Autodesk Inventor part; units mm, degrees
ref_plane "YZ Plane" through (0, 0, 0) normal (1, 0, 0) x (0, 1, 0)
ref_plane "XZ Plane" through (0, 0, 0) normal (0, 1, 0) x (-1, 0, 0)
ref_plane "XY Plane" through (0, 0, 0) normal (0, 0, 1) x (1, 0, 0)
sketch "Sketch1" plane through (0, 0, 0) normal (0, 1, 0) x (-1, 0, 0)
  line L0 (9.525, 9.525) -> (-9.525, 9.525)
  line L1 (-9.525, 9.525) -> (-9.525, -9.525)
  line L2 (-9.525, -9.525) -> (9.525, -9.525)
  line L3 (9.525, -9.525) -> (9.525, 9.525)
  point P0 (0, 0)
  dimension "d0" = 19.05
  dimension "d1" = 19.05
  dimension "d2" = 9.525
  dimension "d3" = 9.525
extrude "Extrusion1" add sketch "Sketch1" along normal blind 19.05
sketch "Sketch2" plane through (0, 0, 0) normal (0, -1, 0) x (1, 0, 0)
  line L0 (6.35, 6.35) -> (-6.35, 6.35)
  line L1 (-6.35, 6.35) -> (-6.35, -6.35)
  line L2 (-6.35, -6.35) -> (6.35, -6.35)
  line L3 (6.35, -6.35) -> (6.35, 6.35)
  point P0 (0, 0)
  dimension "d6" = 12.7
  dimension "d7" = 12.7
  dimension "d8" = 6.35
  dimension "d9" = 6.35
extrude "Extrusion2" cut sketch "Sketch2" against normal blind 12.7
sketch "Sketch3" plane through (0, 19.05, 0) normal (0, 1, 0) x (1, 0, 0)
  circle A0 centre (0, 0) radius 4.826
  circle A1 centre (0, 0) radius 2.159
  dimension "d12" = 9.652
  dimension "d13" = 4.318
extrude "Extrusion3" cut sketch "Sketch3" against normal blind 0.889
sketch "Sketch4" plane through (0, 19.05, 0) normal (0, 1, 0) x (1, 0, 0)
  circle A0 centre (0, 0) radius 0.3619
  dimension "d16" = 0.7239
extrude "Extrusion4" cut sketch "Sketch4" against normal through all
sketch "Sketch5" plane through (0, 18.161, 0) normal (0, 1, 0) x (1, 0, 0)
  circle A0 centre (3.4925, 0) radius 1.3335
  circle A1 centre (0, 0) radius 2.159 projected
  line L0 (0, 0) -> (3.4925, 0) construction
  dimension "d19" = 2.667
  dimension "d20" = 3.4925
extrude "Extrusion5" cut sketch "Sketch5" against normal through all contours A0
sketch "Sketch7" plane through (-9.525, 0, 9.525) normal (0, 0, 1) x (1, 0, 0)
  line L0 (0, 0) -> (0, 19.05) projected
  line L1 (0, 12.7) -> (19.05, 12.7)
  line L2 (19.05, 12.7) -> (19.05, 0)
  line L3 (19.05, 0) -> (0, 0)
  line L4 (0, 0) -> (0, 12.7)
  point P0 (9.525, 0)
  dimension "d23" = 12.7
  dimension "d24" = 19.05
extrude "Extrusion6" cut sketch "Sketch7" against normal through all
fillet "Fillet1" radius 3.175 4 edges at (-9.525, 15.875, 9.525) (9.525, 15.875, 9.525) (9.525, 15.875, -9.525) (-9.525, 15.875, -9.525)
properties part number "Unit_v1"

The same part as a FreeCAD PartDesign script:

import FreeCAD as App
import Part
import Sketcher

V = App.Vector
Q = App.Units.Quantity


def edges_at(feature, points):
    """Names of the edges that pass closest to the given points."""
    edges = feature.Shape.Edges
    near = lambda p: min(range(len(edges)), key=lambda i: edges[i].distToShape(Part.Vertex(*p))[0])
    return sorted({f"Edge{near(p) + 1}" for p in points})

doc = App.newDocument("Part")
body = doc.addObject("PartDesign::Body", "Body")

# Sketch on XZ plane
sketch1 = body.newObject("Sketcher::SketchObject", "Sketch")
sketch1.AttachmentSupport = (doc.getObject("XZ_Plane"), [""])
sketch1.MapMode = "FlatFace"
sketch1.addGeometry([
    Part.LineSegment(V(-10, -10, 0), V(-10, 10, 0)),
    Part.LineSegment(V(-10, 10, 0), V(10, 10, 0)),
    Part.LineSegment(V(10, 10, 0), V(10, -10, 0)),
    Part.LineSegment(V(10, -10, 0), V(-10, -10, 0)),
], False)
sketch1.addConstraint([
    Sketcher.Constraint("Coincident", 0, 2, 1, 1),
    Sketcher.Constraint("Coincident", 1, 2, 2, 1),
    Sketcher.Constraint("Coincident", 2, 2, 3, 1),
    Sketcher.Constraint("Coincident", 3, 2, 0, 1),
    Sketcher.Constraint("Vertical", 0),
    Sketcher.Constraint("Horizontal", 1),
    Sketcher.Constraint("Vertical", 2),
    Sketcher.Constraint("Horizontal", 3),
    Sketcher.Constraint("Symmetric", 0, 2, 2, 2, -1, 1),
    Sketcher.Constraint("Equal", 3, 0),
    Sketcher.Constraint("DistanceX", 1, 1, 1, 2, Q("0.75 in")),
])
pad1 = body.newObject("PartDesign::Pad", "Pad")
pad1.Profile = sketch1
pad1.Length = Q("0.75 in")
pad1.Reversed = True

# Sketch on XZ plane
sketch2 = body.newObject("Sketcher::SketchObject", "Sketch001")
sketch2.AttachmentSupport = (doc.getObject("XZ_Plane"), [""])
sketch2.MapMode = "FlatFace"
sketch2.addGeometry([
    Part.LineSegment(V(6, -6, 0), V(6, 6, 0)),
    Part.LineSegment(V(6, 6, 0), V(-6, 6, 0)),
    Part.LineSegment(V(-6, 6, 0), V(-6, -6, 0)),
    Part.LineSegment(V(-6, -6, 0), V(6, -6, 0)),
], False)
sketch2.addConstraint([
    Sketcher.Constraint("Coincident", 0, 2, 1, 1),
    Sketcher.Constraint("Coincident", 1, 2, 2, 1),
    Sketcher.Constraint("Coincident", 2, 2, 3, 1),
    Sketcher.Constraint("Coincident", 3, 2, 0, 1),
    Sketcher.Constraint("Vertical", 0),
    Sketcher.Constraint("Horizontal", 1),
    Sketcher.Constraint("Vertical", 2),
    Sketcher.Constraint("Horizontal", 3),
    Sketcher.Constraint("Symmetric", 0, 2, 2, 2, -1, 1),
    Sketcher.Constraint("Equal", 3, 0),
    Sketcher.Constraint("DistanceX", 1, 2, 1, 1, Q("0.5 in")),
])
pocket1 = body.newObject("PartDesign::Pocket", "Pocket")
pocket1.Profile = sketch2
pocket1.Length = Q("0.5 in")

# Sketch on XZ plane
sketch3 = body.newObject("Sketcher::SketchObject", "Sketch002")
sketch3.AttachmentSupport = (doc.getObject("XZ_Plane"), [""])
sketch3.MapMode = "FlatFace"
sketch3.AttachmentOffset = App.Placement(V(0, 0, -0.75 * 25.4), App.Rotation())
sketch3.addGeometry([
    Part.Circle(V(0, 0, 0), V(0, 0, 1), 4.8),
    Part.Circle(V(0, 0, 0), V(0, 0, 1), 2.2),
], False)
sketch3.addConstraint([
    Sketcher.Constraint("Coincident", 0, 3, -1, 1),
    Sketcher.Constraint("Coincident", 1, 3, -1, 1),
    Sketcher.Constraint("Diameter", 0, Q("0.38 in")),
    Sketcher.Constraint("Diameter", 1, Q("0.17 in")),
])
pocket2 = body.newObject("PartDesign::Pocket", "Pocket001")
pocket2.Profile = sketch3
pocket2.Length = Q("0.035 in")
pocket2.Reversed = True

# Sketch on XZ plane
sketch4 = body.newObject("Sketcher::SketchObject", "Sketch003")
sketch4.AttachmentSupport = (doc.getObject("XZ_Plane"), [""])
sketch4.MapMode = "FlatFace"
sketch4.AttachmentOffset = App.Placement(V(0, 0, -0.75 * 25.4), App.Rotation())
sketch4.addGeometry(Part.Circle(V(0, 0, 0), V(0, 0, 1), 0.36), False)
sketch4.addConstraint([
    Sketcher.Constraint("Coincident", 0, 3, -1, 1),
    Sketcher.Constraint("Diameter", 0, Q("0.0285 in")),
])
pocket3 = body.newObject("PartDesign::Pocket", "Pocket002")
pocket3.Profile = sketch4
pocket3.Type = "ThroughAll"
pocket3.Reversed = True

# Sketch on XZ plane
sketch5 = body.newObject("Sketcher::SketchObject", "Sketch004")
sketch5.AttachmentSupport = (doc.getObject("XZ_Plane"), [""])
sketch5.MapMode = "FlatFace"
sketch5.AttachmentOffset = App.Placement(V(0, 0, -0.715 * 25.4), App.Rotation())
sketch5.addGeometry(Part.Circle(V(3.5, 0, 0), V(0, 0, 1), 1.3), False)
sketch5.addConstraint([
    Sketcher.Constraint("PointOnObject", 0, 3, -1),
    Sketcher.Constraint("Diameter", 0, Q("0.105 in")),
    Sketcher.Constraint("DistanceX", -1, 1, 0, 3, Q("0.1375 in")),
])
pocket4 = body.newObject("PartDesign::Pocket", "Pocket003")
pocket4.Profile = sketch5
pocket4.Type = "ThroughAll"
pocket4.Reversed = True

# Sketch on XY plane
sketch6 = body.newObject("Sketcher::SketchObject", "Sketch005")
sketch6.AttachmentSupport = (doc.getObject("XY_Plane"), [""])
sketch6.MapMode = "FlatFace"
sketch6.AttachmentOffset = App.Placement(V(0, 0, 0.375 * 25.4), App.Rotation())
sketch6.addGeometry([
    Part.LineSegment(V(-10, 13, 0), V(-10, 0, 0)),
    Part.LineSegment(V(-10, 0, 0), V(10, 0, 0)),
    Part.LineSegment(V(10, 0, 0), V(10, 13, 0)),
    Part.LineSegment(V(10, 13, 0), V(-10, 13, 0)),
], False)
sketch6.addConstraint([
    Sketcher.Constraint("Coincident", 0, 2, 1, 1),
    Sketcher.Constraint("Coincident", 1, 2, 2, 1),
    Sketcher.Constraint("Coincident", 2, 2, 3, 1),
    Sketcher.Constraint("Coincident", 3, 2, 0, 1),
    Sketcher.Constraint("Vertical", 0),
    Sketcher.Constraint("Horizontal", 1),
    Sketcher.Constraint("Vertical", 2),
    Sketcher.Constraint("Horizontal", 3),
    Sketcher.Constraint("Symmetric", 0, 2, 1, 2, -1, 1),
    Sketcher.Constraint("DistanceY", 0, 2, 0, 1, Q("0.5 in")),
    Sketcher.Constraint("DistanceX", 1, 1, 1, 2, Q("0.75 in")),
])
pocket5 = body.newObject("PartDesign::Pocket", "Pocket004")
pocket5.Profile = sketch6
pocket5.Type = "ThroughAll"
doc.recompute()

fillet = body.newObject("PartDesign::Fillet", "Fillet")
fillet.Base = (pocket5, edges_at(pocket5, [
    (-9.525, 15.875, 9.525),
    (9.525, 15.875, 9.525),
    (9.525, 15.875, -9.525),
    (-9.525, 15.875, -9.525),
]))
fillet.Radius = Q("0.125 in")

doc.recompute()
